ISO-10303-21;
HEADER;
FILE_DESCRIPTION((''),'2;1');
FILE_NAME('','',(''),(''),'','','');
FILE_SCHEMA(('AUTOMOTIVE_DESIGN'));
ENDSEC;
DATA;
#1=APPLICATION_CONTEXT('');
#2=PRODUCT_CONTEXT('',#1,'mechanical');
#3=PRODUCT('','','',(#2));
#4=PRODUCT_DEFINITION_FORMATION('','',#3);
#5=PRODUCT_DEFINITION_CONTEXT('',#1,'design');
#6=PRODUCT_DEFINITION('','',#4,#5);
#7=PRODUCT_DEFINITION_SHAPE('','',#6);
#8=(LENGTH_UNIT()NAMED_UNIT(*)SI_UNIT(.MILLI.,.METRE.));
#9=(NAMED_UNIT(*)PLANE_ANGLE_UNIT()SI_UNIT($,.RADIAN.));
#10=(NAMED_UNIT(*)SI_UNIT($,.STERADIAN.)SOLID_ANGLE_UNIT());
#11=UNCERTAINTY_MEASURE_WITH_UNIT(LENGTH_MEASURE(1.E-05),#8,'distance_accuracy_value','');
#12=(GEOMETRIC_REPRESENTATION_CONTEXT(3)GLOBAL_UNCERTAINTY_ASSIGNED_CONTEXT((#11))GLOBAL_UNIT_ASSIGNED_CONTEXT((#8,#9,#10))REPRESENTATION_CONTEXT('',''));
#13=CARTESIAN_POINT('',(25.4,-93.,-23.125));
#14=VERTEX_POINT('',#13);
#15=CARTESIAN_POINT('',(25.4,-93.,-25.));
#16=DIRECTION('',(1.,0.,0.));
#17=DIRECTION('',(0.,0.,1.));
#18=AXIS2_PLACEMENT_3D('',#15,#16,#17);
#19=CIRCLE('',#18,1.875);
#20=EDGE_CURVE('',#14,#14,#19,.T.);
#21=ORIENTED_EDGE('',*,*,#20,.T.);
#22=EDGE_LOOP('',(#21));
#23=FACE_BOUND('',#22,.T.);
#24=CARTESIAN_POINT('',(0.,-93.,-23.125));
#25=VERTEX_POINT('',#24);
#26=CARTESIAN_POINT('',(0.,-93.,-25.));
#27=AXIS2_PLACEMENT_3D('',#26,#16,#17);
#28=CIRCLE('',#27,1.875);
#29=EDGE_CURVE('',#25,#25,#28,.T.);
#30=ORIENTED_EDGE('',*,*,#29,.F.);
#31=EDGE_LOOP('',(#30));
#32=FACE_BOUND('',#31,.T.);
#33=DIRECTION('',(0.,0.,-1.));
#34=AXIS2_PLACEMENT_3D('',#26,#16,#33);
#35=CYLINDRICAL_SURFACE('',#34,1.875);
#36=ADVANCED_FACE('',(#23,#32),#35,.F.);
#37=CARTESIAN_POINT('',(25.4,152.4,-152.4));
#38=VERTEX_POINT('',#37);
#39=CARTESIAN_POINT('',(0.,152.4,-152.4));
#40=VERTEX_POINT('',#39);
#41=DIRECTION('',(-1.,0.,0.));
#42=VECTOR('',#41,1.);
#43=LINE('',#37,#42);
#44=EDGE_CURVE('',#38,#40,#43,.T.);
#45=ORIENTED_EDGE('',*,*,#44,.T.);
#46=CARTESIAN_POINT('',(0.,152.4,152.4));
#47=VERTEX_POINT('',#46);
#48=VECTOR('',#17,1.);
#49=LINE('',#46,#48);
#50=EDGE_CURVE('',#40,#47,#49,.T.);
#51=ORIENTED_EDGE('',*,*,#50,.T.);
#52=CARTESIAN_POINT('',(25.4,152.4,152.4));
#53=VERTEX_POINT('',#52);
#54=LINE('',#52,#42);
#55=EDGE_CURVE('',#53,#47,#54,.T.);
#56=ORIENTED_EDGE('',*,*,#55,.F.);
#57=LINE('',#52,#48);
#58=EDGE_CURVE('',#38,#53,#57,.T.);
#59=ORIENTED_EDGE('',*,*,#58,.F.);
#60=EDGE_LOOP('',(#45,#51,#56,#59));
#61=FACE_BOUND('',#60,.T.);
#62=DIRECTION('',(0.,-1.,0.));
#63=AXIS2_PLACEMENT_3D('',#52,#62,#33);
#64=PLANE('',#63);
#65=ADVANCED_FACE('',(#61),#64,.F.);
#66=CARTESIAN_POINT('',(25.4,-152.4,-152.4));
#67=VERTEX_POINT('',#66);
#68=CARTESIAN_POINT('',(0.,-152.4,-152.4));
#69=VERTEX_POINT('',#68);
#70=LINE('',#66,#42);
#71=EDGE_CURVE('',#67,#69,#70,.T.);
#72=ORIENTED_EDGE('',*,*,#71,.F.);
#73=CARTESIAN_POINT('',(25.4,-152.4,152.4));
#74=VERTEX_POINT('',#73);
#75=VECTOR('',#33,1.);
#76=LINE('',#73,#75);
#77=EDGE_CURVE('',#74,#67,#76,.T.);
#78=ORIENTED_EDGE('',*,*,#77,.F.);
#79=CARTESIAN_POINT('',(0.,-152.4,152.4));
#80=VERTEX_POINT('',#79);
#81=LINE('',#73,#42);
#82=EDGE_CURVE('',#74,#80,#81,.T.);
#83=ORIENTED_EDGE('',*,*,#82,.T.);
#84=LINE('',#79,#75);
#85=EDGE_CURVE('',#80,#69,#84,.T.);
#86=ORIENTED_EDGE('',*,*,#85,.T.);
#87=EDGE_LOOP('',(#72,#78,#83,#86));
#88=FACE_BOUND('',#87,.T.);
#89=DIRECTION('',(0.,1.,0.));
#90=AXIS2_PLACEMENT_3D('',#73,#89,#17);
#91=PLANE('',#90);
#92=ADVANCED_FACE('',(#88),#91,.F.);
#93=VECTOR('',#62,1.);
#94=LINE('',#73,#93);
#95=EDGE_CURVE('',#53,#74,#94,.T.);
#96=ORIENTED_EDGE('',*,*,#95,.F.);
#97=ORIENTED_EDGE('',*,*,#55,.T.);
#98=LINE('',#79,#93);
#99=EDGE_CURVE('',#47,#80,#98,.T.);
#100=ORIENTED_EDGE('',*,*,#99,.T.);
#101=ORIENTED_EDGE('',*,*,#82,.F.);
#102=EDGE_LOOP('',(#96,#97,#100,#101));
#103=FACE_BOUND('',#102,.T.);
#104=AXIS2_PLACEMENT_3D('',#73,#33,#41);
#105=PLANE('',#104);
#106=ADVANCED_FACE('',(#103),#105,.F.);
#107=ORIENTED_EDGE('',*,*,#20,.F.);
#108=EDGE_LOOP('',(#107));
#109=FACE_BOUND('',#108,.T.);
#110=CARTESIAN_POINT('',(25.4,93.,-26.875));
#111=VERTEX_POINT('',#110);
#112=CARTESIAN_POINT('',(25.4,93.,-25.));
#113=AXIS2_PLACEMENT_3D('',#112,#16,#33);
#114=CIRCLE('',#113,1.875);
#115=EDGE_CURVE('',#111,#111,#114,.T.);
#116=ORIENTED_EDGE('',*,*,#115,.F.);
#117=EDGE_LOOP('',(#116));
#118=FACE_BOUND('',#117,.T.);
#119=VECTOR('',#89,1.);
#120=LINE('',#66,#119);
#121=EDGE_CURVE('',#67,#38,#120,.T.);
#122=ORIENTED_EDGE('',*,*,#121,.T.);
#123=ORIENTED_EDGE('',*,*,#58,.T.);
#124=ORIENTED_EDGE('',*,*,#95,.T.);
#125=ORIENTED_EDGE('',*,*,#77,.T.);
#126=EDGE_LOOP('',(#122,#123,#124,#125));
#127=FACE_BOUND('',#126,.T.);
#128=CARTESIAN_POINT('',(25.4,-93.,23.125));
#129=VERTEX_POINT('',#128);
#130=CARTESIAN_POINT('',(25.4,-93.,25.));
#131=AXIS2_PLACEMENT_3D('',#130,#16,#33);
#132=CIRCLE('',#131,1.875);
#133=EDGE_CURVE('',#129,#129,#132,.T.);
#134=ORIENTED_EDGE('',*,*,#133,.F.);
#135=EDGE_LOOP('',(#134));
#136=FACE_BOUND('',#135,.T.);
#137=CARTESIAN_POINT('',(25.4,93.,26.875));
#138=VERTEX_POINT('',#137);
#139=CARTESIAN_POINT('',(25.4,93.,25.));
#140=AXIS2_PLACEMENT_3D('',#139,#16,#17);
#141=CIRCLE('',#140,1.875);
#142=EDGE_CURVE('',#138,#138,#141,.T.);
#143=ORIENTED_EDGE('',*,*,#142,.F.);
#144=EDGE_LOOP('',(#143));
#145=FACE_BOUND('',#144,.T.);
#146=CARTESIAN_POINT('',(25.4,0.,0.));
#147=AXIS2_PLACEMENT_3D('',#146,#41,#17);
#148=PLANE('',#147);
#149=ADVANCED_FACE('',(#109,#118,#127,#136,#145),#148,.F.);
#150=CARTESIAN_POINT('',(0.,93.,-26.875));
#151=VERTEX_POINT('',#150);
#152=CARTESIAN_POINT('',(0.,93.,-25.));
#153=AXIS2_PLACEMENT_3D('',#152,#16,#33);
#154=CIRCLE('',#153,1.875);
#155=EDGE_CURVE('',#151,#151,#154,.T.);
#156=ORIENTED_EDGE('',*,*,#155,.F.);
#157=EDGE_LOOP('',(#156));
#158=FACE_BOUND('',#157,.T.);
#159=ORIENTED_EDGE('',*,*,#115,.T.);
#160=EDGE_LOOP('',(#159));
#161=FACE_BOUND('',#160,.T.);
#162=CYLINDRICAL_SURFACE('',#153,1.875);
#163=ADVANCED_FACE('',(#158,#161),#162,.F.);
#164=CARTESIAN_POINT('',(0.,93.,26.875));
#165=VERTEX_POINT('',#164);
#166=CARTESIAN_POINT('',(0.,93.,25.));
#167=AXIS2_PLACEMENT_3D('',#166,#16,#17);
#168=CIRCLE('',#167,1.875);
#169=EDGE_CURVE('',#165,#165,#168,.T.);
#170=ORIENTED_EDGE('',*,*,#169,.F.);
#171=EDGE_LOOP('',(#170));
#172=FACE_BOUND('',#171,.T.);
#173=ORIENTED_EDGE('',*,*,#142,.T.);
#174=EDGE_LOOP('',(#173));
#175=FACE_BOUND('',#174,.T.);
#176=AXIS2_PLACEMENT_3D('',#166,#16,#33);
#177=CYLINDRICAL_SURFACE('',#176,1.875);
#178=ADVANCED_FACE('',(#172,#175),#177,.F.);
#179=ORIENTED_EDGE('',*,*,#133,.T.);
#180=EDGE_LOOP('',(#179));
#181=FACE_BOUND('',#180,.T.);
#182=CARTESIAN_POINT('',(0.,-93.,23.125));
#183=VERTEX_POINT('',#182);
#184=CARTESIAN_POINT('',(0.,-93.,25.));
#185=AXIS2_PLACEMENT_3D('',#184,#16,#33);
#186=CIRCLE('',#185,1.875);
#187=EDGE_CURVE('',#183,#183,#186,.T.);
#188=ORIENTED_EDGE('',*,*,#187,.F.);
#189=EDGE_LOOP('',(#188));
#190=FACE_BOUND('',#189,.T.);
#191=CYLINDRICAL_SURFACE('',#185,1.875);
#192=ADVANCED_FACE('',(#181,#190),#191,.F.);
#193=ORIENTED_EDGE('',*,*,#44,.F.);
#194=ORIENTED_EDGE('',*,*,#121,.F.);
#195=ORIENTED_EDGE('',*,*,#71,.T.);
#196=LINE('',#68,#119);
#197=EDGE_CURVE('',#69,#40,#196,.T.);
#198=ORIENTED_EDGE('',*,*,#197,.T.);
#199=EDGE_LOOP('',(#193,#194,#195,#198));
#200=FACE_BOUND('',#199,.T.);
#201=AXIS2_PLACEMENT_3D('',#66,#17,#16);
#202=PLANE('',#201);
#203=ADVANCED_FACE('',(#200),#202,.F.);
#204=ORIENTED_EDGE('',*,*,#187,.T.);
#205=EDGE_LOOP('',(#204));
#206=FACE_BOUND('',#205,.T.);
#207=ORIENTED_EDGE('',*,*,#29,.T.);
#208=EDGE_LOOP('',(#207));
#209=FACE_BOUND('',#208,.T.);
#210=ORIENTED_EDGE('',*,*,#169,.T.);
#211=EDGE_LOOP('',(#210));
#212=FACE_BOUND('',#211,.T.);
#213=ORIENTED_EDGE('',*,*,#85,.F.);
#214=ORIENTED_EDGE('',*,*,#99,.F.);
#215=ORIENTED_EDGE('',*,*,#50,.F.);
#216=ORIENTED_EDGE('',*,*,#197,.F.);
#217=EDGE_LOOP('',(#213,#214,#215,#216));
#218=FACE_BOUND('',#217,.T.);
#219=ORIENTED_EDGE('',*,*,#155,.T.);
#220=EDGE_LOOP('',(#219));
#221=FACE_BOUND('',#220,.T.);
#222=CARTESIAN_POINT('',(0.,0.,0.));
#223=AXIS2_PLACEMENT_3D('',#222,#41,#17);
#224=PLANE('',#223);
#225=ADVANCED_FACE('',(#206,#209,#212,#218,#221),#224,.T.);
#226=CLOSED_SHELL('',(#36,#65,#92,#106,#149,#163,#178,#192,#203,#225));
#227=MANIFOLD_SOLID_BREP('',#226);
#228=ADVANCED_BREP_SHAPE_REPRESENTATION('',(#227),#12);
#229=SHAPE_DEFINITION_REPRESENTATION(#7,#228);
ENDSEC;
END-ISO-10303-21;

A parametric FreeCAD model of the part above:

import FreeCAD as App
import Part
import Sketcher
from FreeCAD import Vector
Q = App.Units.Quantity

doc = App.newDocument("Part")
params = doc.addObject("Spreadsheet::Sheet", "Params")
for row, (alias, value) in enumerate([
    ("sketch1_width", "12 in"),
    ("pad1_length", "1 in"),
], start=1):
    params.set(f"A{row}", alias)
    params.set(f"B{row}", "=" + value)
    params.setAlias(f"B{row}", alias)

body = doc.addObject("PartDesign::Body", "Body")

# Sketch on YZ plane
sketch1 = body.newObject("Sketcher::SketchObject", "Sketch")
sketch1.AttachmentSupport = (doc.getObject("YZ_Plane"), [""])
sketch1.MapMode = "FlatFace"
sketch1.addGeometry(Part.LineSegment(Vector(152.4, 152.4, 0), Vector(-152.4, 152.4, 0)), False)
sketch1.addGeometry(Part.LineSegment(Vector(-152.4, 152.4, 0), Vector(-152.4, -152.4, 0)), False)
sketch1.addGeometry(Part.LineSegment(Vector(-152.4, -152.4, 0), Vector(152.4, -152.4, 0)), False)
sketch1.addGeometry(Part.LineSegment(Vector(152.4, -152.4, 0), Vector(152.4, 152.4, 0)), False)
sketch1.addConstraint(Sketcher.Constraint("Coincident", 0, 2, 1, 1))
sketch1.addConstraint(Sketcher.Constraint("Coincident", 1, 2, 2, 1))
sketch1.addConstraint(Sketcher.Constraint("Coincident", 2, 2, 3, 1))
sketch1.addConstraint(Sketcher.Constraint("Coincident", 3, 2, 0, 1))
sketch1.addConstraint(Sketcher.Constraint("Horizontal", 0))
sketch1.addConstraint(Sketcher.Constraint("Vertical", 1))
sketch1.addConstraint(Sketcher.Constraint("Horizontal", 2))
sketch1.addConstraint(Sketcher.Constraint("Vertical", 3))
sketch1.addConstraint(Sketcher.Constraint("Symmetric", 0, 2, 2, 2, -1, 1))
sketch1.addConstraint(Sketcher.Constraint("Equal", 2, 1))
sketch1.addConstraint(Sketcher.Constraint("DistanceX", 0, 2, 0, 1, Q("12 in")))
sketch1.setExpression("Constraints[10]", "Params.sketch1_width")
pad1 = body.newObject("PartDesign::Pad", "Pad")
pad1.Profile = sketch1
pad1.setExpression("Length", "Params.pad1_length")

# Sketch on YZ plane
sketch2 = body.newObject("Sketcher::SketchObject", "Sketch001")
sketch2.AttachmentSupport = (doc.getObject("YZ_Plane"), [""])
sketch2.MapMode = "FlatFace"
sketch2.AttachmentOffset = App.Placement(Vector(0, 0, 1 * 25.4), App.Rotation())
sketch2.addGeometry(Part.Circle(Vector(-93, 25, 0), Vector(0, 0, 1), 1.875), False)
sketch2.addGeometry(Part.Circle(Vector(-93, -25, 0), Vector(0, 0, 1), 1.875), False)
sketch2.addGeometry(Part.Circle(Vector(93, 25, 0), Vector(0, 0, 1), 1.875), False)
sketch2.addGeometry(Part.Circle(Vector(93, -25, 0), Vector(0, 0, 1), 1.875), False)
sketch2.addConstraint(Sketcher.Constraint("Equal", 0, 1))
sketch2.addConstraint(Sketcher.Constraint("Equal", 1, 2))
sketch2.addConstraint(Sketcher.Constraint("Equal", 2, 3))
sketch2.addConstraint(Sketcher.Constraint("Symmetric", 1, 3, 2, 3, -1, 1))
sketch2.addConstraint(Sketcher.Constraint("Symmetric", 0, 3, 3, 3, -1, 1))
sketch2.addConstraint(Sketcher.Constraint("Symmetric", 0, 3, 2, 3, -2))
sketch2.addConstraint(Sketcher.Constraint("Diameter", 0, Q("3.75 mm")))
sketch2.addConstraint(Sketcher.Constraint("DistanceX", 0, 3, -1, 1, Q("93 mm")))
sketch2.addConstraint(Sketcher.Constraint("DistanceY", -1, 1, 0, 3, Q("25 mm")))
pocket1 = body.newObject("PartDesign::Pocket", "Pocket")
pocket1.Profile = sketch2
pocket1.Type = "ThroughAll"

doc.recompute()
